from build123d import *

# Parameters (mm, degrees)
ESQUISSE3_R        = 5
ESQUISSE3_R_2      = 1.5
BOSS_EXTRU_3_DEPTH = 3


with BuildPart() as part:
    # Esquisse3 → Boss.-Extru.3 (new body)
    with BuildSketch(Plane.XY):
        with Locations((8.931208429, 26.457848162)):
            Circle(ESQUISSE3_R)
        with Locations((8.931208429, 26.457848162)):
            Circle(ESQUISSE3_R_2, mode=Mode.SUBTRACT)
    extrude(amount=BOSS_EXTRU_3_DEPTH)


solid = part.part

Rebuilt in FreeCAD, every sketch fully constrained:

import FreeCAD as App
import Part
import Sketcher
from FreeCAD import Vector
Q = App.Units.Quantity

doc = App.newDocument("Part")
body = doc.addObject("PartDesign::Body", "Body")

# Sketch on XY plane
sketch1 = body.newObject("Sketcher::SketchObject", "Sketch")
sketch1.AttachmentSupport = (doc.getObject("XY_Plane"), [""])
sketch1.MapMode = "FlatFace"
sketch1.addGeometry([
    Part.Circle(Vector(8.931208, 26.457848, 0), Vector(0, 0, 1), 5),
    Part.Circle(Vector(8.931208, 26.457848, 0), Vector(0, 0, 1), 1.5),
], False)
sketch1.addConstraint([
    Sketcher.Constraint("Coincident", 1, 3, 0, 3),
    Sketcher.Constraint("Diameter", 0, Q("10 mm")),
    Sketcher.Constraint("Diameter", 1, Q("3 mm")),
    Sketcher.Constraint("DistanceX", -1, 1, 0, 3, Q("8.931208 mm")),
    Sketcher.Constraint("DistanceY", -1, 1, 0, 3, Q("26.457848 mm")),
])
pad1 = body.newObject("PartDesign::Pad", "Pad")
pad1.Profile = sketch1
pad1.Length = 3

doc.recompute()
